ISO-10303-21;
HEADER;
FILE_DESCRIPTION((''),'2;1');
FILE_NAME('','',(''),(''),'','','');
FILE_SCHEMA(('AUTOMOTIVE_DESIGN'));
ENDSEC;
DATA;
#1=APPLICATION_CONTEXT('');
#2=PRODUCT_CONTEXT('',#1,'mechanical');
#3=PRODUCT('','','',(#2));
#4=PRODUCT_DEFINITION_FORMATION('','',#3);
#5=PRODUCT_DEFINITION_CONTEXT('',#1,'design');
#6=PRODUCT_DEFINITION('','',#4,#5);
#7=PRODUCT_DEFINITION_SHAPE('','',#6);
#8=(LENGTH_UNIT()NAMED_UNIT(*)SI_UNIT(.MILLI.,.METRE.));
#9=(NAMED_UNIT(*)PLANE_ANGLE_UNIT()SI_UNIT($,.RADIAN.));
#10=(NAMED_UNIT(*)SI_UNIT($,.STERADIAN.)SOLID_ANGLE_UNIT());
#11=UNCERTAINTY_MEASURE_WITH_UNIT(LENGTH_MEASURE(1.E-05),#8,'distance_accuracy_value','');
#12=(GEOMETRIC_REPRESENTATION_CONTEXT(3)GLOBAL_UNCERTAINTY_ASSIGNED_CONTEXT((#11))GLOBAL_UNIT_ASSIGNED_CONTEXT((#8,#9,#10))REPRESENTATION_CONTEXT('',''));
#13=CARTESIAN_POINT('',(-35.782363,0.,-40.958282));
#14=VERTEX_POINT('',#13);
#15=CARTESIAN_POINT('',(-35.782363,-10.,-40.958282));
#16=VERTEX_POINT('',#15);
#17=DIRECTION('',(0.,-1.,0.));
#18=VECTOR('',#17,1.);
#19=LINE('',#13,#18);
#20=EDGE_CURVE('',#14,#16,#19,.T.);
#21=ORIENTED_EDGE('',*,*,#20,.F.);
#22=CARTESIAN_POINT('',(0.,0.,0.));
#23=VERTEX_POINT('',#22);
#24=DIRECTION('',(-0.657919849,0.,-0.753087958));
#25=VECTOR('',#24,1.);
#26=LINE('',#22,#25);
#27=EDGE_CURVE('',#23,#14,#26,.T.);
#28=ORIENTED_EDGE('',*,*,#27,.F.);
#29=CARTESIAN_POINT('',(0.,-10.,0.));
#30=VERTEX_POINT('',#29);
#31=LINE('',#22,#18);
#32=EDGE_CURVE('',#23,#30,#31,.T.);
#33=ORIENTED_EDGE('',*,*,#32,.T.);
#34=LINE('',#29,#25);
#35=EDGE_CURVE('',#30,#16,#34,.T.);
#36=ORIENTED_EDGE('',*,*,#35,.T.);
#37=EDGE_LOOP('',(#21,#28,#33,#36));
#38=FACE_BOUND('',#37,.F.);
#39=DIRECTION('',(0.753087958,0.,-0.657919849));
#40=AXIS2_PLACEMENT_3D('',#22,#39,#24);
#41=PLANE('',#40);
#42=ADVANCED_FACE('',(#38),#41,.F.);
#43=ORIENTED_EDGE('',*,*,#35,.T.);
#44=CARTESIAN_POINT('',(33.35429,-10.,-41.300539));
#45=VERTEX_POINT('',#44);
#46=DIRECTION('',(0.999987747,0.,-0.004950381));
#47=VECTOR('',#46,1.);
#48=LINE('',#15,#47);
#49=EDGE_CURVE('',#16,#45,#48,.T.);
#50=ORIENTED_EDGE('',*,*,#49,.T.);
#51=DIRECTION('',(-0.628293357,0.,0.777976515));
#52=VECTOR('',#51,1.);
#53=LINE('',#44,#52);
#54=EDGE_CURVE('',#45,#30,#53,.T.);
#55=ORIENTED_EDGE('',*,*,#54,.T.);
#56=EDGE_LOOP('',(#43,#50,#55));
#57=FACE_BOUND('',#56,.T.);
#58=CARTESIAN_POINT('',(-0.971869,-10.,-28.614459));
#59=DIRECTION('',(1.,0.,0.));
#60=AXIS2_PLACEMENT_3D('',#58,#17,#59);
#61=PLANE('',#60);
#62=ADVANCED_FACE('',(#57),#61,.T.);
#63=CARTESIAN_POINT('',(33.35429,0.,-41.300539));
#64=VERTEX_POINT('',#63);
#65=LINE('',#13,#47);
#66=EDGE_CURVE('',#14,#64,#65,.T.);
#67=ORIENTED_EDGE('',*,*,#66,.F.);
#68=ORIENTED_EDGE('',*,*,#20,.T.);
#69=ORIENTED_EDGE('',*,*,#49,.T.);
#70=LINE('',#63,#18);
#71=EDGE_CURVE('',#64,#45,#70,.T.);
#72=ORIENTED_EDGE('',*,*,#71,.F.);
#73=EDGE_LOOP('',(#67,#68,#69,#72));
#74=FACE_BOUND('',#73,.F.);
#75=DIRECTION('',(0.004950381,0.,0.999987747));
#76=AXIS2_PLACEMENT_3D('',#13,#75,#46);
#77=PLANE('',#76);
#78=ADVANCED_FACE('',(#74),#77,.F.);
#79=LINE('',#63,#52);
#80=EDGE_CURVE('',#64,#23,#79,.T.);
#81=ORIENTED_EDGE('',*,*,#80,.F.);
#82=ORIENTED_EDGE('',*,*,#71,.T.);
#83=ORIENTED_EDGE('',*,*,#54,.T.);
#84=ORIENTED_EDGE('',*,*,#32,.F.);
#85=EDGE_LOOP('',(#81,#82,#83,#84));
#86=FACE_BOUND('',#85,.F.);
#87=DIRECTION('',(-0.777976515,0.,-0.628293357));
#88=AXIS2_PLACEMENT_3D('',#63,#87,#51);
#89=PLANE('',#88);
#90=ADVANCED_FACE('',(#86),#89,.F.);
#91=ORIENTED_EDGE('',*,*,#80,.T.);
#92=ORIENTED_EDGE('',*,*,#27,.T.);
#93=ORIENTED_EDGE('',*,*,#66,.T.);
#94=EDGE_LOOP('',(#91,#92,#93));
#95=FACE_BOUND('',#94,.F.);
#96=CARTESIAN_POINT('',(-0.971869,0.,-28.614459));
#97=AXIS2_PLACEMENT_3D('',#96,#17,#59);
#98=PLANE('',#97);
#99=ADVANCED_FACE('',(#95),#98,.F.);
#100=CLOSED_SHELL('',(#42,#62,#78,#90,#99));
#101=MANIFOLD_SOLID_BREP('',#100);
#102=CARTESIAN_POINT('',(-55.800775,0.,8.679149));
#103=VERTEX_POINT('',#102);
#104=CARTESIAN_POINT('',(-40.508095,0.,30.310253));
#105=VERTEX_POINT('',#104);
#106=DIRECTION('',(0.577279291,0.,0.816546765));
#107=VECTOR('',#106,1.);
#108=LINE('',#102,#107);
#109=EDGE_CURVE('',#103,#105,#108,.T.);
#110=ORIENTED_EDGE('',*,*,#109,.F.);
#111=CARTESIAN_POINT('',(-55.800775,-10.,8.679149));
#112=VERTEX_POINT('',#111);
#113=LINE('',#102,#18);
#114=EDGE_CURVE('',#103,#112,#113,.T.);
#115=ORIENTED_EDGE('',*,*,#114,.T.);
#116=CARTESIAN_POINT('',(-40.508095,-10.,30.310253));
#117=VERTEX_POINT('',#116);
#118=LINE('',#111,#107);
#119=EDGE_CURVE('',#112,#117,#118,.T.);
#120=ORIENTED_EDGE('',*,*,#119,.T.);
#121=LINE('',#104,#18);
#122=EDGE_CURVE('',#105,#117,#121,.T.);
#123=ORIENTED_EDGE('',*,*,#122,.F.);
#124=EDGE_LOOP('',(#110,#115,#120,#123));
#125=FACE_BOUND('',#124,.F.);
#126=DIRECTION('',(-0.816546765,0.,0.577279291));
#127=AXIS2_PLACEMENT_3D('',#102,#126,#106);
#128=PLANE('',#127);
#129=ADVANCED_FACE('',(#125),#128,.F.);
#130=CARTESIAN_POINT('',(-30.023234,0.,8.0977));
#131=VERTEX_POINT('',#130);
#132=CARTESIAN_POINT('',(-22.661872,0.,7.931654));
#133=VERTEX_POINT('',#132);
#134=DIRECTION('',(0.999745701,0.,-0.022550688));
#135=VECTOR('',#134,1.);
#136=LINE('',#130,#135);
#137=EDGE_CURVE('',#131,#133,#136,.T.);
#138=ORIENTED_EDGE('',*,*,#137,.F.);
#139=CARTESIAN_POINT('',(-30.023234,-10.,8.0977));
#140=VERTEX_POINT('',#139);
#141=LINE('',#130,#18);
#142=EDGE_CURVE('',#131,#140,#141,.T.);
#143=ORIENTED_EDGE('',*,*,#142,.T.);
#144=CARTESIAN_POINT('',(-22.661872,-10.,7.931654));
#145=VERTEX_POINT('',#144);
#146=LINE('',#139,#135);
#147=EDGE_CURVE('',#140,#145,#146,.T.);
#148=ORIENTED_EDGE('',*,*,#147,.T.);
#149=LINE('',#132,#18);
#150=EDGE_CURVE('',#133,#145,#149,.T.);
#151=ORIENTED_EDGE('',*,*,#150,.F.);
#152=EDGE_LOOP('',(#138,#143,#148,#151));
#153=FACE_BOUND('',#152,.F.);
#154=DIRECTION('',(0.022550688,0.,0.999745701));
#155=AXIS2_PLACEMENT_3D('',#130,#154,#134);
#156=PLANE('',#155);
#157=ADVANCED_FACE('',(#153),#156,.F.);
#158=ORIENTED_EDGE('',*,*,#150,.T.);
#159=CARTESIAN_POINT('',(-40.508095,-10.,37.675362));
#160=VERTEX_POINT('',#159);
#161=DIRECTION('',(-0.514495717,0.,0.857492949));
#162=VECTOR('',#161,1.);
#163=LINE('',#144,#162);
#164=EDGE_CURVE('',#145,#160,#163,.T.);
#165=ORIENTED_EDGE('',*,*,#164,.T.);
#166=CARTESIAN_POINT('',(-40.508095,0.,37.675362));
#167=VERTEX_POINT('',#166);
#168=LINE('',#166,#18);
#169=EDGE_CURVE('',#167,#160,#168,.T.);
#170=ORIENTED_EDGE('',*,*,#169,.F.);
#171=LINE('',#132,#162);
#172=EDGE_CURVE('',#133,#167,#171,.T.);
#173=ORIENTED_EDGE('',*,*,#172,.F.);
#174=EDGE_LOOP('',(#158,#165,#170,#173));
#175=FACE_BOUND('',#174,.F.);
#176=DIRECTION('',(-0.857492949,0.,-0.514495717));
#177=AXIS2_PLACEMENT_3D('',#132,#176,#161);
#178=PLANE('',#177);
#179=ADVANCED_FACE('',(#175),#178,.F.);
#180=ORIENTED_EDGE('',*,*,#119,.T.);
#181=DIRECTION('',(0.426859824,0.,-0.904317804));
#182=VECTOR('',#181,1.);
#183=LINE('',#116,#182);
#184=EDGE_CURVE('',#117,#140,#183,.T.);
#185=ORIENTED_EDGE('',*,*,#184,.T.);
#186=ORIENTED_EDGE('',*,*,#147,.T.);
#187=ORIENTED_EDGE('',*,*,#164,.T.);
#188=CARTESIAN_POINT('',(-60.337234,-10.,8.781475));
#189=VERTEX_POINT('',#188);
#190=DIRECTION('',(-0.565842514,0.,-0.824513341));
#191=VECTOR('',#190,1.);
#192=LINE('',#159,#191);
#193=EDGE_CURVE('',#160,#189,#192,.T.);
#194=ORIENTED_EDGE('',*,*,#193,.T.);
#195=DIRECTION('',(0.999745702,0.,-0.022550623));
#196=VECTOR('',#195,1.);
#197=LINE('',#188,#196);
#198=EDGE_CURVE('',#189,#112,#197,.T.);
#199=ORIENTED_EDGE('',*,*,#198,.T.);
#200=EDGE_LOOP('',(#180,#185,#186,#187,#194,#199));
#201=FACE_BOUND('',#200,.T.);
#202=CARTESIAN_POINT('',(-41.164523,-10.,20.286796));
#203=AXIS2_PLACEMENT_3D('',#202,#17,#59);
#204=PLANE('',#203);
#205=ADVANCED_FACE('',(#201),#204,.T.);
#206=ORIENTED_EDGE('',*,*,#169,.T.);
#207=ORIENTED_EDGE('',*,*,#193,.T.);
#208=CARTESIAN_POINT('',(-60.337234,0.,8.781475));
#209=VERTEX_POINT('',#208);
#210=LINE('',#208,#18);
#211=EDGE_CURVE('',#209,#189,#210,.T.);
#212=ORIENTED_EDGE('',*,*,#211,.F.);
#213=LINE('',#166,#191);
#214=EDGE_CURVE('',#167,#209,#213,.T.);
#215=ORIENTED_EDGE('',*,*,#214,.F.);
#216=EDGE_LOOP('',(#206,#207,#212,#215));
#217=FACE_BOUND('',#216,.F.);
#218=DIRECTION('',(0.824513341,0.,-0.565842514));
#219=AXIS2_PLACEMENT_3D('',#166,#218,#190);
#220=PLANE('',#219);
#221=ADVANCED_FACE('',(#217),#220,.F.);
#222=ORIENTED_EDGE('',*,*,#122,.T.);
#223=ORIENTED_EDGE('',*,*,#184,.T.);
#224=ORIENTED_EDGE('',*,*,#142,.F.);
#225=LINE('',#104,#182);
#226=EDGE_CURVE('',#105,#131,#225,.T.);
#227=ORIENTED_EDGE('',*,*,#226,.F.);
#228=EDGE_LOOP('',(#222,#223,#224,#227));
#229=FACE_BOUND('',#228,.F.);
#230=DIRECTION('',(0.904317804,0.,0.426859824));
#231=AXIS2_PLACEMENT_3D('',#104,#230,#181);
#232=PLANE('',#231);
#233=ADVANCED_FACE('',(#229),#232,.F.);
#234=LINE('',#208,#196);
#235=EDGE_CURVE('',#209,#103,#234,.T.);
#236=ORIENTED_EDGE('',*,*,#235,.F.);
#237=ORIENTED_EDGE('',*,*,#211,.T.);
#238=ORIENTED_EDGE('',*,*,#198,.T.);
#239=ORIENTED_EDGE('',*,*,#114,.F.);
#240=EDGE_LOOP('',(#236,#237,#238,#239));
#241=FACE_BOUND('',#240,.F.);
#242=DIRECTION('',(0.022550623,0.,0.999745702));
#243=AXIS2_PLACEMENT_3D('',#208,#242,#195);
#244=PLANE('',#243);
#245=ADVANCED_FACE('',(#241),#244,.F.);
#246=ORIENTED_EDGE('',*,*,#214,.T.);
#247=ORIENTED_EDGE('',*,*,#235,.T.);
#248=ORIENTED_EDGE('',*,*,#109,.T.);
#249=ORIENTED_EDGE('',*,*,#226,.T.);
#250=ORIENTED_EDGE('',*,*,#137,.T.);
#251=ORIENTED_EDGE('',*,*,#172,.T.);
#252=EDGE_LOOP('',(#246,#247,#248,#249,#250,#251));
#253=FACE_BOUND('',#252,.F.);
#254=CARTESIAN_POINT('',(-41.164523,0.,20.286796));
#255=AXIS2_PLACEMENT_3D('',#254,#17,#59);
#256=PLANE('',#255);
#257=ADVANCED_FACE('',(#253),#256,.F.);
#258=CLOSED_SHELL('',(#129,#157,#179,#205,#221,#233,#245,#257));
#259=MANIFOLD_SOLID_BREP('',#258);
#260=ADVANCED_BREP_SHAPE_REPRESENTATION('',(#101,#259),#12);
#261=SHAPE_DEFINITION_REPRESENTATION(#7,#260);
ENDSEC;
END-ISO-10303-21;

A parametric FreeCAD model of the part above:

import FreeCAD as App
import Part
import Sketcher

V = App.Vector


def add_polygon(sketch, points):
    """Adds a closed chain of lines whose ends are joined by coincident constraints."""
    first, n = sketch.GeometryCount, len(points)
    for a, b in zip(points, points[1:] + points[:1]):
        sketch.addGeometry(Part.LineSegment(App.Vector(*a, 0), App.Vector(*b, 0)), False)
    for i in range(n):
        sketch.addConstraint(Sketcher.Constraint("Coincident", first + i, 2, first + (i + 1) % n, 1))

doc = App.newDocument("Part")
body = doc.addObject("PartDesign::Body", "Body")

sketch1 = body.newObject("Sketcher::SketchObject", "Sketch")
sketch1.AttachmentSupport = (doc.getObject("XZ_Plane"), [""])
sketch1.MapMode = "FlatFace"
add_polygon(sketch1, [(0, 0), (-36, -41), (33, -41)])
sketch1.addConstraint([
    Sketcher.Constraint("Coincident", 2, 2, -1, 1),
    Sketcher.Constraint("Distance", 1, 69.1375),
    Sketcher.Constraint("Distance", 2, 53.087128),
    Sketcher.Constraint("DistanceY", 0, 2, -1, 1, 40.958282),
    Sketcher.Constraint("DistanceX", -1, 1, 1, 2, 33.35429),
])
pad1 = body.newObject("PartDesign::Pad", "Pad")
pad1.Profile = sketch1
pad1.Length = 10
body2 = doc.addObject("PartDesign::Body", "Body001")

sketch2 = body2.newObject("Sketcher::SketchObject", "Sketch001")
sketch2.AttachmentSupport = (doc.getObject("XZ_Plane001"), [""])
sketch2.MapMode = "FlatFace"
add_polygon(sketch2, [(-40.5, 37.7), (-60.3, 8.8), (-55.8, 8.7), (-40.5, 30.3), (-30, 8.1), (-22.7, 7.9)])
sketch2.addConstraint([
    Sketcher.Constraint("Parallel", 1, 4),
    Sketcher.Constraint("Vertical", 2, 2, 5, 2),
    Sketcher.Constraint("DistanceX", 0, 2, 3, 2, 30.314),
    Sketcher.Constraint("DistanceY", -1, 1, 3, 2, 8.0977),
    Sketcher.Constraint("DistanceY", 4, 2, 2, 2, 22.378599),
    Sketcher.Constraint("DistanceY", -1, 1, 1, 2, 8.679149),
    Sketcher.Constraint("DistanceX", 4, 2, -1, 1, 22.661872),
    Sketcher.Constraint("DistanceX", 0, 2, 1, 2, 4.536459),
    Sketcher.Constraint("DistanceX", 1, 2, 2, 2, 15.29268),
    Sketcher.Constraint("DistanceX", 3, 2, 4, 2, 7.361362),
    Sketcher.Constraint("DistanceY", 4, 2, 0, 2, 0.849821),
    Sketcher.Constraint("DistanceY", 2, 2, 5, 2, 7.365109),
])
pad2 = body2.newObject("PartDesign::Pad", "Pad001")
pad2.Profile = sketch2
pad2.Length = 10

doc.recompute()
